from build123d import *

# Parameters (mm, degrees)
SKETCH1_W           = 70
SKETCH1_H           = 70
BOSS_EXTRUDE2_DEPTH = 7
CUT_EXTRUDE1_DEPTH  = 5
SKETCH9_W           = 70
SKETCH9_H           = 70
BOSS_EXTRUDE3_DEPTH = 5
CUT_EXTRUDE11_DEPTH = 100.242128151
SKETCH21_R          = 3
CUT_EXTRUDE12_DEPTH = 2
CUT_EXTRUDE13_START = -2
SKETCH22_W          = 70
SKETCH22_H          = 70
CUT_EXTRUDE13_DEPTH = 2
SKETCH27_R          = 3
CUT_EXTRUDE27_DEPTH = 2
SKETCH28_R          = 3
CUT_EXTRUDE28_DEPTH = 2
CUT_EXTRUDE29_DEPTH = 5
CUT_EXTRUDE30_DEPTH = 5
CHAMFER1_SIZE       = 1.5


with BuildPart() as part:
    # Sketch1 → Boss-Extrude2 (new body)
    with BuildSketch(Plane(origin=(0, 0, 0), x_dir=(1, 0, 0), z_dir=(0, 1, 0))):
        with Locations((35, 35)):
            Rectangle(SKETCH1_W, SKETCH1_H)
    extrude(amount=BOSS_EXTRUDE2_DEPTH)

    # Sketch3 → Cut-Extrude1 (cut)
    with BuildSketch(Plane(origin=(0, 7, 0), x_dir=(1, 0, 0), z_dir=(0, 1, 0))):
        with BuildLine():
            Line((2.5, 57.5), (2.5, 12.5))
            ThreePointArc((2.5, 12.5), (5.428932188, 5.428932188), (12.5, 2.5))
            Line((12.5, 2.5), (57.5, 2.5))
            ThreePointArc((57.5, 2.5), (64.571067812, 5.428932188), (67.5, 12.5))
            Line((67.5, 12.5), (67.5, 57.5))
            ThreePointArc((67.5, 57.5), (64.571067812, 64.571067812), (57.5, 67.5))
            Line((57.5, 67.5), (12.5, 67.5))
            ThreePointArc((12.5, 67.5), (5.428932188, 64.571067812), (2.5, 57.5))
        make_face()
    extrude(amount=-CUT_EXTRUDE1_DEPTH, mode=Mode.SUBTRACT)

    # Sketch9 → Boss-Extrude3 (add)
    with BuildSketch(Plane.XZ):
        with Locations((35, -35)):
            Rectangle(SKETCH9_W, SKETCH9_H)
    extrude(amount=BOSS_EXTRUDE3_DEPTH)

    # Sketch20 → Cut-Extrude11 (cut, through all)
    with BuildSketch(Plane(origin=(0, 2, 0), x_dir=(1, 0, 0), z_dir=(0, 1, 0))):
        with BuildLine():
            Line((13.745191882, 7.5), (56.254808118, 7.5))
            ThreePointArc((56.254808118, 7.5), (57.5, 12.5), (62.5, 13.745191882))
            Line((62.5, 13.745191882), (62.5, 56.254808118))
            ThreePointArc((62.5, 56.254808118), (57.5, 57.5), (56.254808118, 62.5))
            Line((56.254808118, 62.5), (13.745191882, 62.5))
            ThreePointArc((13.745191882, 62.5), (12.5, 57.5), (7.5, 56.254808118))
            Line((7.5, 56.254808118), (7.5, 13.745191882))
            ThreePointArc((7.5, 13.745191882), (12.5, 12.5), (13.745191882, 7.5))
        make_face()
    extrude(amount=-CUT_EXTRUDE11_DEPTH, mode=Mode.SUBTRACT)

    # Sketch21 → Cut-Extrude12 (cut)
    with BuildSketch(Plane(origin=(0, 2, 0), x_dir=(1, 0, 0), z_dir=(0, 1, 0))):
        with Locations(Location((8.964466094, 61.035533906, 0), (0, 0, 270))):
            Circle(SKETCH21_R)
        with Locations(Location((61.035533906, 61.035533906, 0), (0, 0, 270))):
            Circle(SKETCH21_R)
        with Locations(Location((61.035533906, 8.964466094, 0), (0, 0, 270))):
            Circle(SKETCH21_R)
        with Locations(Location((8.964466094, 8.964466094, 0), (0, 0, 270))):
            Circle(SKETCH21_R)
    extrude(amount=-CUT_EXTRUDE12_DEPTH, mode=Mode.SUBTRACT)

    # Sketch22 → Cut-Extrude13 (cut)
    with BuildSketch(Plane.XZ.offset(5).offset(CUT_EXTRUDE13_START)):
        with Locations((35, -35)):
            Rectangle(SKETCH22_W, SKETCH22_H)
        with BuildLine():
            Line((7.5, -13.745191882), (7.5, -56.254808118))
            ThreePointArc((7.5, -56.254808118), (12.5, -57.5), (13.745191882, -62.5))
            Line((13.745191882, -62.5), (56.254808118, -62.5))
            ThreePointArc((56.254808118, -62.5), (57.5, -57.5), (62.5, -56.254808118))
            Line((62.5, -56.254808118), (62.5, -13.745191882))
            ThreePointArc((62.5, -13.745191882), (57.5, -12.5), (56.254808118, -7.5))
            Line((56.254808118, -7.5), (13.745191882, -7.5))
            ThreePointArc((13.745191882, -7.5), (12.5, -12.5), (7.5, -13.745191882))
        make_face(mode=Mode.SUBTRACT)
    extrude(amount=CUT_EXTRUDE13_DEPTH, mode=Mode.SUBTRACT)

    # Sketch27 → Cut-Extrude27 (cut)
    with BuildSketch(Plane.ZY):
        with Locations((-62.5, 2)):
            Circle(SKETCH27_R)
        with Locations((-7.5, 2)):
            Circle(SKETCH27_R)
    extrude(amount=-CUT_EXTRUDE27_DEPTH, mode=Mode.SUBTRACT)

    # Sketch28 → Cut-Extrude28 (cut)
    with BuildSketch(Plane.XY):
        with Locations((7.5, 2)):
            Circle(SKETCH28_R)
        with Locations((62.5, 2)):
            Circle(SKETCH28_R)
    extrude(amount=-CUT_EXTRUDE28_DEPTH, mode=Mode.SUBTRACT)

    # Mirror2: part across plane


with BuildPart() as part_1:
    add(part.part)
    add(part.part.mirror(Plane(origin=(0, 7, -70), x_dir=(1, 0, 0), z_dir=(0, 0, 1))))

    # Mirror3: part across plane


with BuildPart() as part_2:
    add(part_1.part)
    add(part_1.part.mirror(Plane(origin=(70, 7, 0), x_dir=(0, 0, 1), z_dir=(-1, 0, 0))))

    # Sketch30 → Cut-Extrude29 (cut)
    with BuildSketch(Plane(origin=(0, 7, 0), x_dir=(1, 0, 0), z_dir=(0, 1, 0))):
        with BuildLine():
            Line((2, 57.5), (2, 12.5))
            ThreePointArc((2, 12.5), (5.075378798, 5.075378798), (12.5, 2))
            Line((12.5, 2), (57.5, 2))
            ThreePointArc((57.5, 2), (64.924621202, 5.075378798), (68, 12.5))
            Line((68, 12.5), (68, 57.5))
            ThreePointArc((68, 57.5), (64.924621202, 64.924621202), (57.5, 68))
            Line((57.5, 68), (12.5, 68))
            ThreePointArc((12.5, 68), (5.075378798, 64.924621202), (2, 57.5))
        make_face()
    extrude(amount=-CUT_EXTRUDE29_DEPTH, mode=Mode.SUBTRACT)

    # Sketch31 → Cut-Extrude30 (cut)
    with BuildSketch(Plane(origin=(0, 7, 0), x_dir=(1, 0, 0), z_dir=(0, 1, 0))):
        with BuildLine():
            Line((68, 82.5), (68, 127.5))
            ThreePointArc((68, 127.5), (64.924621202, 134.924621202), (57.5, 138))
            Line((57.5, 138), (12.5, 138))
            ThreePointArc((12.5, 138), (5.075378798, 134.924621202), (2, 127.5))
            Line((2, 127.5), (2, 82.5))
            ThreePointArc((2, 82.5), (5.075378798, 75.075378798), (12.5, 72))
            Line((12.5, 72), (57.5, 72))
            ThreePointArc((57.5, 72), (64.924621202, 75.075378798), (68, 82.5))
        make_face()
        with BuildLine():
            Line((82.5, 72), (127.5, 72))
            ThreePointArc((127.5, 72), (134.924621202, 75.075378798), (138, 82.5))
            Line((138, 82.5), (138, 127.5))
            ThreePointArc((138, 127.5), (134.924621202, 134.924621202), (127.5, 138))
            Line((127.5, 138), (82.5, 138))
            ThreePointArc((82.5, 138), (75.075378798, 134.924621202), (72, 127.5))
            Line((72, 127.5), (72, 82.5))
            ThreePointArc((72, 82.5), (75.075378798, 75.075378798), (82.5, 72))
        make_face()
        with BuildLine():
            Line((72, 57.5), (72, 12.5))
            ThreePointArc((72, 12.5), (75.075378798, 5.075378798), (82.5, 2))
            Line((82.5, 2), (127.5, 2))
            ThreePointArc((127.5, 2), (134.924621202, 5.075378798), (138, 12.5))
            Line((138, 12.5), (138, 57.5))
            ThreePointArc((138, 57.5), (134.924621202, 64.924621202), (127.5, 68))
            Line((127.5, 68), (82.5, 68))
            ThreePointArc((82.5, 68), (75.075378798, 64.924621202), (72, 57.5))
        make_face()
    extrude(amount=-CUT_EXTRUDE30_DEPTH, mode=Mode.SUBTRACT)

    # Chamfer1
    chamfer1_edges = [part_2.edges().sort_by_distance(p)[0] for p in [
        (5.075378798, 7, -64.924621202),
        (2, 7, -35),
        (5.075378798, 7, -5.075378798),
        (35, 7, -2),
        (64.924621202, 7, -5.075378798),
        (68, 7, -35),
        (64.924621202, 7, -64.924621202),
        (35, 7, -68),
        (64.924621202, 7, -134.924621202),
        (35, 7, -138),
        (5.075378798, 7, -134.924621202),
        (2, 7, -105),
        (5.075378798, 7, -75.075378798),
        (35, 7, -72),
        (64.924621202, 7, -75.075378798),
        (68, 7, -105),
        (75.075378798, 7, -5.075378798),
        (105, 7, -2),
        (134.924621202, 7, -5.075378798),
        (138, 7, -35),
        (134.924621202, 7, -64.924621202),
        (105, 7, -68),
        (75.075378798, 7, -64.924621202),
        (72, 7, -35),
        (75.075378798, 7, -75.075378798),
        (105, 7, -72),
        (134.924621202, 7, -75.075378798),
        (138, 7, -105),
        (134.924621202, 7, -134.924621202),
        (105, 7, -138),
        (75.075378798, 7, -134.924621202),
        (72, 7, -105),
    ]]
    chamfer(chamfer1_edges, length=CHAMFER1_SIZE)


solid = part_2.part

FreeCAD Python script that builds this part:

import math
import FreeCAD as App
import Part
import Sketcher
from FreeCAD import Vector
Q = App.Units.Quantity


def edges_at(feature, points):
    """Names of the edges that pass closest to the given points."""
    edges = feature.Shape.Edges
    near = lambda p: min(range(len(edges)), key=lambda i: edges[i].distToShape(Part.Vertex(*p))[0])
    return sorted({f"Edge{near(p) + 1}" for p in points})

doc = App.newDocument("Part")
body = doc.addObject("PartDesign::Body", "Body")

# Sketch on XZ plane
sketch1 = body.newObject("Sketcher::SketchObject", "Sketch")
sketch1.AttachmentSupport = (doc.getObject("XZ_Plane"), [""])
sketch1.MapMode = "FlatFace"
sketch1.addGeometry([
    Part.LineSegment(Vector(0, -70, 0), Vector(0, 0, 0)),
    Part.LineSegment(Vector(0, 0, 0), Vector(70, 0, 0)),
    Part.LineSegment(Vector(70, 0, 0), Vector(70, -70, 0)),
    Part.LineSegment(Vector(70, -70, 0), Vector(0, -70, 0)),
], False)
sketch1.addConstraint([
    Sketcher.Constraint("Coincident", 0, 2, 1, 1),
    Sketcher.Constraint("Coincident", 1, 2, 2, 1),
    Sketcher.Constraint("Coincident", 2, 2, 3, 1),
    Sketcher.Constraint("Coincident", 3, 2, 0, 1),
    Sketcher.Constraint("Vertical", 0),
    Sketcher.Constraint("Horizontal", 1),
    Sketcher.Constraint("Vertical", 2),
    Sketcher.Constraint("Horizontal", 3),
    Sketcher.Constraint("Coincident", 0, 2, -1, 1),
    Sketcher.Constraint("Equal", 3, 0),
    Sketcher.Constraint("DistanceX", 1, 1, 1, 2, Q("70 mm")),
])
pad1 = body.newObject("PartDesign::Pad", "Pad")
pad1.Profile = sketch1
pad1.Length = 7
pad1.Reversed = True

# Sketch on XZ plane
sketch2 = body.newObject("Sketcher::SketchObject", "Sketch001")
sketch2.AttachmentSupport = (doc.getObject("XZ_Plane"), [""])
sketch2.MapMode = "FlatFace"
sketch2.AttachmentOffset = App.Placement(Vector(0, 0, -7), App.Rotation())
sketch2.addGeometry([
    Part.LineSegment(Vector(2, -58, 0), Vector(2, -12, 0)),  # 0
    Part.ArcOfCircle(Part.Circle(Vector(12, -12, 0), Vector(0, 0, 1), 10), math.radians(90), math.radians(180)),  # 1
    Part.LineSegment(Vector(12, -2, 0), Vector(58, -2, 0)),  # 2
    Part.ArcOfCircle(Part.Circle(Vector(58, -12, 0), Vector(0, 0, 1), 10), math.radians(0), math.radians(90)),  # 3
    Part.LineSegment(Vector(68, -12, 0), Vector(68, -58, 0)),  # 4
    Part.ArcOfCircle(Part.Circle(Vector(58, -58, 0), Vector(0, 0, 1), 10), math.radians(-90), math.radians(0)),  # 5
    Part.LineSegment(Vector(58, -68, 0), Vector(12, -68, 0)),  # 6
    Part.ArcOfCircle(Part.Circle(Vector(12, -58, 0), Vector(0, 0, 1), 10), math.radians(180), math.radians(270)),  # 7
], False)
sketch2.addConstraint([
    Sketcher.Constraint("Tangent", 0, 2, 1, 2),
    Sketcher.Constraint("Tangent", 1, 1, 2, 1),
    Sketcher.Constraint("Tangent", 2, 2, 3, 2),
    Sketcher.Constraint("Tangent", 3, 1, 4, 1),
    Sketcher.Constraint("Tangent", 4, 2, 5, 2),
    Sketcher.Constraint("Tangent", 5, 1, 6, 1),
    Sketcher.Constraint("Tangent", 6, 2, 7, 2),
    Sketcher.Constraint("Tangent", 7, 1, 0, 1),
    Sketcher.Constraint("Vertical", 0),
    Sketcher.Constraint("Horizontal", 2),
    Sketcher.Constraint("Vertical", 4),
    Sketcher.Constraint("Horizontal", 6),
    Sketcher.Constraint("Equal", 1, 3),
    Sketcher.Constraint("Equal", 3, 5),
    Sketcher.Constraint("Equal", 5, 7),
    Sketcher.Constraint("Equal", 6, 0),
    Sketcher.Constraint("Radius", 1, Q("10 mm")),
    Sketcher.Constraint("DistanceX", 2, 1, 2, 2, Q("45 mm")),
    Sketcher.Constraint("DistanceX", -1, 1, 1, 3, Q("12.5 mm")),
    Sketcher.Constraint("DistanceY", 1, 3, -1, 1, Q("12.5 mm")),
])
pocket1 = body.newObject("PartDesign::Pocket", "Pocket")
pocket1.Profile = sketch2
pocket1.Length = 5
pocket1.Reversed = True

# Sketch on XZ plane
sketch3 = body.newObject("Sketcher::SketchObject", "Sketch002")
sketch3.AttachmentSupport = (doc.getObject("XZ_Plane"), [""])
sketch3.MapMode = "FlatFace"
sketch3.addGeometry([
    Part.LineSegment(Vector(0, 0, 0), Vector(0, -70, 0)),
    Part.LineSegment(Vector(0, -70, 0), Vector(70, -70, 0)),
    Part.LineSegment(Vector(70, -70, 0), Vector(70, 0, 0)),
    Part.LineSegment(Vector(70, 0, 0), Vector(0, 0, 0)),
], False)
sketch3.addConstraint([
    Sketcher.Constraint("Coincident", 0, 2, 1, 1),
    Sketcher.Constraint("Coincident", 1, 2, 2, 1),
    Sketcher.Constraint("Coincident", 2, 2, 3, 1),
    Sketcher.Constraint("Coincident", 3, 2, 0, 1),
    Sketcher.Constraint("Vertical", 0),
    Sketcher.Constraint("Horizontal", 1),
    Sketcher.Constraint("Vertical", 2),
    Sketcher.Constraint("Horizontal", 3),
    Sketcher.Constraint("Coincident", 3, 2, -1, 1),
    Sketcher.Constraint("Equal", 3, 0),
    Sketcher.Constraint("DistanceX", 1, 1, 1, 2, Q("70 mm")),
])
pad2 = body.newObject("PartDesign::Pad", "Pad001")
pad2.Profile = sketch3
pad2.Length = 5

# Sketch on XZ plane
sketch4 = body.newObject("Sketcher::SketchObject", "Sketch003")
sketch4.AttachmentSupport = (doc.getObject("XZ_Plane"), [""])
sketch4.MapMode = "FlatFace"
sketch4.AttachmentOffset = App.Placement(Vector(0, 0, -2), App.Rotation())
sketch4.addGeometry([
    Part.LineSegment(Vector(14, -8, 0), Vector(56, -8, 0)),  # 0
    Part.ArcOfCircle(Part.Circle(Vector(61, -9, 0), Vector(0, 0, 1), 5), math.radians(163), math.radians(287)),  # 1
    Part.LineSegment(Vector(62, -14, 0), Vector(62, -56, 0)),  # 2
    Part.ArcOfCircle(Part.Circle(Vector(61, -61, 0), Vector(0, 0, 1), 5), math.radians(73), math.radians(197)),  # 3
    Part.LineSegment(Vector(56, -62, 0), Vector(14, -62, 0)),  # 4
    Part.ArcOfCircle(Part.Circle(Vector(9, -61, 0), Vector(0, 0, 1), 5), math.radians(-17), math.radians(107)),  # 5
    Part.LineSegment(Vector(8, -56, 0), Vector(8, -14, 0)),  # 6
    Part.ArcOfCircle(Part.Circle(Vector(9, -9, 0), Vector(0, 0, 1), 5), math.radians(-107), math.radians(17)),  # 7
], False)
sketch4.addConstraint([
    Sketcher.Constraint("Coincident", 0, 2, 1, 1),
    Sketcher.Constraint("Coincident", 1, 2, 2, 1),
    Sketcher.Constraint("Coincident", 2, 2, 3, 1),
    Sketcher.Constraint("Coincident", 3, 2, 4, 1),
    Sketcher.Constraint("Coincident", 4, 2, 5, 1),
    Sketcher.Constraint("Coincident", 5, 2, 6, 1),
    Sketcher.Constraint("Coincident", 6, 2, 7, 1),
    Sketcher.Constraint("Coincident", 7, 2, 0, 1),
    Sketcher.Constraint("Horizontal", 0),
    Sketcher.Constraint("Vertical", 2),
    Sketcher.Constraint("Horizontal", 4),
    Sketcher.Constraint("Vertical", 6),
    Sketcher.Constraint("Equal", 1, 3),
    Sketcher.Constraint("Equal", 3, 5),
    Sketcher.Constraint("Equal", 5, 7),
    Sketcher.Constraint("Horizontal", 3, 3, 5, 3),
    Sketcher.Constraint("Horizontal", 1, 3, 7, 3),
    Sketcher.Constraint("Horizontal", 2, 2, 5, 2),
    Sketcher.Constraint("Horizontal", 1, 2, 6, 2),
    Sketcher.Constraint("Vertical", 1, 3, 3, 3),
    Sketcher.Constraint("Vertical", 0, 2, 3, 2),
    Sketcher.Constraint("Equal", 4, 2),
    Sketcher.Constraint("Radius", 1, Q("5 mm")),
    Sketcher.Constraint("DistanceY", 0, 2, -1, 1, Q("7.5 mm")),
    Sketcher.Constraint("DistanceX", -1, 1, 1, 2, Q("62.5 mm")),
    Sketcher.Constraint("DistanceY", 3, 2, -1, 1, Q("62.5 mm")),
    Sketcher.Constraint("DistanceX", -1, 1, 5, 2, Q("7.5 mm")),
    Sketcher.Constraint("DistanceX", 0, 1, 0, 2, Q("42.509616 mm")),
])
pocket2 = body.newObject("PartDesign::Pocket", "Pocket001")
pocket2.Profile = sketch4
pocket2.Type = "ThroughAll"
pocket2.Reversed = True

# Sketch on XZ plane
sketch5 = body.newObject("Sketcher::SketchObject", "Sketch004")
sketch5.AttachmentSupport = (doc.getObject("XZ_Plane"), [""])
sketch5.MapMode = "FlatFace"
sketch5.AttachmentOffset = App.Placement(Vector(0, 0, -2), App.Rotation())
sketch5.addGeometry([
    Part.Circle(Vector(9, -61, 0), Vector(0, 0, 1), 3),
    Part.Circle(Vector(61, -61, 0), Vector(0, 0, 1), 3),
    Part.Circle(Vector(61, -9, 0), Vector(0, 0, 1), 3),
    Part.Circle(Vector(9, -9, 0), Vector(0, 0, 1), 3),
], False)
sketch5.addConstraint([
    Sketcher.Constraint("Equal", 0, 1),
    Sketcher.Constraint("Equal", 1, 2),
    Sketcher.Constraint("Equal", 2, 3),
    Sketcher.Constraint("Horizontal", 0, 3, 1, 3),
    Sketcher.Constraint("Horizontal", 2, 3, 3, 3),
    Sketcher.Constraint("Vertical", 1, 3, 2, 3),
    Sketcher.Constraint("Vertical", 0, 3, 3, 3),
    Sketcher.Constraint("Diameter", 0, Q("6 mm")),
    Sketcher.Constraint("DistanceX", -1, 1, 0, 3, Q("8.964466 mm")),
    Sketcher.Constraint("DistanceY", 0, 3, -1, 1, Q("61.035534 mm")),
    Sketcher.Constraint("DistanceX", -1, 1, 1, 3, Q("61.035534 mm")),
    Sketcher.Constraint("DistanceY", 2, 3, -1, 1, Q("8.964466 mm")),
])
pocket3 = body.newObject("PartDesign::Pocket", "Pocket002")
pocket3.Profile = sketch5
pocket3.Length = 2
pocket3.Reversed = True

# Sketch on XZ plane
sketch6 = body.newObject("Sketcher::SketchObject", "Sketch005")
sketch6.AttachmentSupport = (doc.getObject("XZ_Plane"), [""])
sketch6.MapMode = "FlatFace"
sketch6.AttachmentOffset = App.Placement(Vector(0, 0, 3), App.Rotation())
sketch6.addGeometry([
    Part.LineSegment(Vector(0, 0, 0), Vector(0, -70, 0)),  # 0
    Part.LineSegment(Vector(0, -70, 0), Vector(70, -70, 0)),  # 1
    Part.LineSegment(Vector(70, -70, 0), Vector(70, 0, 0)),  # 2
    Part.LineSegment(Vector(70, 0, 0), Vector(0, 0, 0)),  # 3
    Part.LineSegment(Vector(8, -56, 0), Vector(8, -14, 0)),  # 4
    Part.ArcOfCircle(Part.Circle(Vector(9, -9, 0), Vector(0, 0, 1), 5), math.radians(-107), math.radians(17)),  # 5
    Part.LineSegment(Vector(14, -8, 0), Vector(56, -8, 0)),  # 6
    Part.ArcOfCircle(Part.Circle(Vector(61, -9, 0), Vector(0, 0, 1), 5), math.radians(163), math.radians(287)),  # 7
    Part.LineSegment(Vector(62, -14, 0), Vector(62, -56, 0)),  # 8
    Part.ArcOfCircle(Part.Circle(Vector(61, -61, 0), Vector(0, 0, 1), 5), math.radians(73), math.radians(197)),  # 9
    Part.LineSegment(Vector(56, -62, 0), Vector(14, -62, 0)),  # 10
    Part.ArcOfCircle(Part.Circle(Vector(9, -61, 0), Vector(0, 0, 1), 5), math.radians(-17), math.radians(107)),  # 11
], False)
sketch6.addConstraint([
    Sketcher.Constraint("Coincident", 0, 2, 1, 1),
    Sketcher.Constraint("Coincident", 1, 2, 2, 1),
    Sketcher.Constraint("Coincident", 2, 2, 3, 1),
    Sketcher.Constraint("Coincident", 3, 2, 0, 1),
    Sketcher.Constraint("Coincident", 4, 2, 5, 1),
    Sketcher.Constraint("Coincident", 5, 2, 6, 1),
    Sketcher.Constraint("Coincident", 6, 2, 7, 1),
    Sketcher.Constraint("Coincident", 7, 2, 8, 1),
    Sketcher.Constraint("Coincident", 8, 2, 9, 1),
    Sketcher.Constraint("Coincident", 9, 2, 10, 1),
    Sketcher.Constraint("Coincident", 10, 2, 11, 1),
    Sketcher.Constraint("Coincident", 11, 2, 4, 1),
    Sketcher.Constraint("Vertical", 0),
    Sketcher.Constraint("Horizontal", 1),
    Sketcher.Constraint("Vertical", 2),
    Sketcher.Constraint("Horizontal", 3),
    Sketcher.Constraint("Vertical", 4),
    Sketcher.Constraint("Horizontal", 6),
    Sketcher.Constraint("Vertical", 8),
    Sketcher.Constraint("Horizontal", 10),
    Sketcher.Constraint("Coincident", 3, 2, -1, 1),
    Sketcher.Constraint("Equal", 5, 7),
    Sketcher.Constraint("Equal", 7, 9),
    Sketcher.Constraint("Equal", 9, 11),
    Sketcher.Constraint("Horizontal", 5, 3, 7, 3),
    Sketcher.Constraint("Horizontal", 9, 3, 11, 3),
    Sketcher.Constraint("Horizontal", 4, 2, 7, 2),
    Sketcher.Constraint("Horizontal", 8, 2, 11, 2),
    Sketcher.Constraint("Vertical", 7, 3, 9, 3),
    Sketcher.Constraint("Vertical", 6, 2, 9, 2),
    Sketcher.Constraint("Equal", 3, 0),
    Sketcher.Constraint("Equal", 10, 4),
    Sketcher.Constraint("Radius", 5, Q("5 mm")),
    Sketcher.Constraint("DistanceX", 1, 1, 1, 2, Q("70 mm")),
    Sketcher.Constraint("DistanceX", -1, 1, 4, 2, Q("7.5 mm")),
    Sketcher.Constraint("DistanceY", 5, 2, -1, 1, Q("7.5 mm")),
    Sketcher.Constraint("DistanceX", -1, 1, 7, 2, Q("62.5 mm")),
    Sketcher.Constraint("DistanceY", 9, 2, -1, 1, Q("62.5 mm")),
    Sketcher.Constraint("DistanceX", 6, 1, 6, 2, Q("42.509616 mm")),
])
pocket4 = body.newObject("PartDesign::Pocket", "Pocket003")
pocket4.Profile = sketch6
pocket4.Length = 2
pocket4.Reversed = True

# Sketch on YZ plane
sketch7 = body.newObject("Sketcher::SketchObject", "Sketch006")
sketch7.AttachmentSupport = (doc.getObject("YZ_Plane"), [""])
sketch7.MapMode = "FlatFace"
sketch7.addGeometry([
    Part.Circle(Vector(2, -62.5, 0), Vector(0, 0, 1), 3),
    Part.Circle(Vector(2, -7.5, 0), Vector(0, 0, 1), 3),
], False)
sketch7.addConstraint([
    Sketcher.Constraint("Equal", 0, 1),
    Sketcher.Constraint("Vertical", 0, 3, 1, 3),
    Sketcher.Constraint("Diameter", 0, Q("6 mm")),
    Sketcher.Constraint("DistanceX", -1, 1, 0, 3, Q("2 mm")),
    Sketcher.Constraint("DistanceY", 0, 3, 1, 3, Q("55 mm")),
    Sketcher.Constraint("DistanceY", 0, 3, -1, 1, Q("62.5 mm")),
])
pocket5 = body.newObject("PartDesign::Pocket", "Pocket004")
pocket5.Profile = sketch7
pocket5.Length = 2
pocket5.Reversed = True

# Sketch on XY plane
sketch8 = body.newObject("Sketcher::SketchObject", "Sketch007")
sketch8.AttachmentSupport = (doc.getObject("XY_Plane"), [""])
sketch8.MapMode = "FlatFace"
sketch8.addGeometry([
    Part.Circle(Vector(7.5, 2, 0), Vector(0, 0, 1), 3),
    Part.Circle(Vector(62.5, 2, 0), Vector(0, 0, 1), 3),
], False)
sketch8.addConstraint([
    Sketcher.Constraint("Equal", 0, 1),
    Sketcher.Constraint("Horizontal", 0, 3, 1, 3),
    Sketcher.Constraint("Diameter", 0, Q("6 mm")),
    Sketcher.Constraint("DistanceY", -1, 1, 0, 3, Q("2 mm")),
    Sketcher.Constraint("DistanceX", 0, 3, 1, 3, Q("55 mm")),
    Sketcher.Constraint("DistanceX", -1, 1, 0, 3, Q("7.5 mm")),
])
pocket6 = body.newObject("PartDesign::Pocket", "Pocket005")
pocket6.Profile = sketch8
pocket6.Length = 2
body2 = doc.addObject("PartDesign::Body", "Body001")
doc.recompute()

body2.BaseFeature = body
doc.recompute()

mirroring = doc.addObject("Part::Mirroring", "Mirroring")
mirroring.Source = body
mirroring.Base = Vector(0, 7, -70)
mirroring.Normal = Vector(0, 0, 1)
body3 = doc.addObject("PartDesign::Body", "Body002")
body3.BaseFeature = mirroring
boolean = body2.newObject("PartDesign::Boolean", "Boolean")
boolean.Type = "Fuse"
boolean.addObjects([body3])
doc.recompute()
body4 = doc.addObject("PartDesign::Body", "Body003")
doc.recompute()

body4.BaseFeature = body2
doc.recompute()

mirroring2 = doc.addObject("Part::Mirroring", "Mirroring001")
mirroring2.Source = body2
mirroring2.Base = Vector(70, 7, 0)
mirroring2.Normal = Vector(-1, 0, 0)
body5 = doc.addObject("PartDesign::Body", "Body004")
body5.BaseFeature = mirroring2
boolean2 = body4.newObject("PartDesign::Boolean", "Boolean001")
boolean2.Type = "Fuse"
boolean2.addObjects([body5])
doc.recompute()

# Sketch on XZ plane
sketch9 = body4.newObject("Sketcher::SketchObject", "Sketch008")
sketch9.AttachmentSupport = (doc.getObject("XZ_Plane003"), [""])
sketch9.MapMode = "FlatFace"
sketch9.AttachmentOffset = App.Placement(Vector(0, 0, -7), App.Rotation())
sketch9.addGeometry([
    Part.LineSegment(Vector(2, -58, 0), Vector(2, -12, 0)),  # 0
    Part.ArcOfCircle(Part.Circle(Vector(13, -13, 0), Vector(0, 0, 1), 11), math.radians(90), math.radians(180)),  # 1
    Part.LineSegment(Vector(12, -2, 0), Vector(58, -2, 0)),  # 2
    Part.ArcOfCircle(Part.Circle(Vector(57, -13, 0), Vector(0, 0, 1), 11), math.radians(0), math.radians(90)),  # 3
    Part.LineSegment(Vector(68, -12, 0), Vector(68, -58, 0)),  # 4
    Part.ArcOfCircle(Part.Circle(Vector(57, -57, 0), Vector(0, 0, 1), 11), math.radians(-90), math.radians(0)),  # 5
    Part.LineSegment(Vector(58, -68, 0), Vector(12, -68, 0)),  # 6
    Part.ArcOfCircle(Part.Circle(Vector(13, -57, 0), Vector(0, 0, 1), 11), math.radians(-180), math.radians(-90)),  # 7
], False)
sketch9.addConstraint([
    Sketcher.Constraint("Tangent", 0, 2, 1, 2),
    Sketcher.Constraint("Tangent", 1, 1, 2, 1),
    Sketcher.Constraint("Tangent", 2, 2, 3, 2),
    Sketcher.Constraint("Tangent", 3, 1, 4, 1),
    Sketcher.Constraint("Tangent", 4, 2, 5, 2),
    Sketcher.Constraint("Tangent", 5, 1, 6, 1),
    Sketcher.Constraint("Tangent", 6, 2, 7, 2),
    Sketcher.Constraint("Tangent", 7, 1, 0, 1),
    Sketcher.Constraint("Vertical", 0),
    Sketcher.Constraint("Horizontal", 2),
    Sketcher.Constraint("Vertical", 4),
    Sketcher.Constraint("Horizontal", 6),
    Sketcher.Constraint("Equal", 1, 3),
    Sketcher.Constraint("Equal", 3, 5),
    Sketcher.Constraint("Equal", 5, 7),
    Sketcher.Constraint("Equal", 6, 0),
    Sketcher.Constraint("Radius", 1, Q("10.5 mm")),
    Sketcher.Constraint("DistanceX", 2, 1, 2, 2, Q("45 mm")),
    Sketcher.Constraint("DistanceX", -1, 1, 0, 2, Q("2 mm")),
    Sketcher.Constraint("DistanceY", 1, 1, -1, 1, Q("2 mm")),
])
pocket7 = body4.newObject("PartDesign::Pocket", "Pocket006")
pocket7.Profile = sketch9
pocket7.Length = 5
pocket7.Reversed = True

# Sketch on XZ plane
sketch10 = body4.newObject("Sketcher::SketchObject", "Sketch009")
sketch10.AttachmentSupport = (doc.getObject("XZ_Plane003"), [""])
sketch10.MapMode = "FlatFace"
sketch10.AttachmentOffset = App.Placement(Vector(0, 0, -7), App.Rotation())
sketch10.addGeometry([
    Part.LineSegment(Vector(68, -82, 0), Vector(68, -128, 0)),  # 0
    Part.ArcOfCircle(Part.Circle(Vector(57, -127, 0), Vector(0, 0, 1), 11), math.radians(-90), math.radians(0)),  # 1
    Part.LineSegment(Vector(58, -138, 0), Vector(12, -138, 0)),  # 2
    Part.ArcOfCircle(Part.Circle(Vector(13, -127, 0), Vector(0, 0, 1), 11), math.radians(-180), math.radians(-90)),  # 3
    Part.LineSegment(Vector(2, -128, 0), Vector(2, -82, 0)),  # 4
    Part.ArcOfCircle(Part.Circle(Vector(13, -83, 0), Vector(0, 0, 1), 11), math.radians(90), math.radians(180)),  # 5
    Part.LineSegment(Vector(12, -72, 0), Vector(58, -72, 0)),  # 6
    Part.ArcOfCircle(Part.Circle(Vector(57, -83, 0), Vector(0, 0, 1), 11), math.radians(0), math.radians(90)),  # 7
    Part.LineSegment(Vector(82, -72, 0), Vector(128, -72, 0)),  # 8
    Part.ArcOfCircle(Part.Circle(Vector(127, -83, 0), Vector(0, 0, 1), 11), math.radians(0), math.radians(90)),  # 9
    Part.LineSegment(Vector(138, -82, 0), Vector(138, -128, 0)),  # 10
    Part.ArcOfCircle(Part.Circle(Vector(127, -127, 0), Vector(0, 0, 1), 11), math.radians(-90), math.radians(0)),  # 11
    Part.LineSegment(Vector(128, -138, 0), Vector(82, -138, 0)),  # 12
    Part.ArcOfCircle(Part.Circle(Vector(83, -127, 0), Vector(0, 0, 1), 11), math.radians(-180), math.radians(-90)),  # 13
    Part.LineSegment(Vector(72, -128, 0), Vector(72, -82, 0)),  # 14
    Part.ArcOfCircle(Part.Circle(Vector(83, -83, 0), Vector(0, 0, 1), 11), math.radians(90), math.radians(180)),  # 15
    Part.LineSegment(Vector(72, -58, 0), Vector(72, -12, 0)),  # 16
    Part.ArcOfCircle(Part.Circle(Vector(83, -13, 0), Vector(0, 0, 1), 11), math.radians(90), math.radians(180)),  # 17
    Part.LineSegment(Vector(82, -2, 0), Vector(128, -2, 0)),  # 18
    Part.ArcOfCircle(Part.Circle(Vector(127, -13, 0), Vector(0, 0, 1), 11), math.radians(0), math.radians(90)),  # 19
    Part.LineSegment(Vector(138, -12, 0), Vector(138, -58, 0)),  # 20
    Part.ArcOfCircle(Part.Circle(Vector(127, -57, 0), Vector(0, 0, 1), 11), math.radians(-90), math.radians(0)),  # 21
    Part.LineSegment(Vector(128, -68, 0), Vector(82, -68, 0)),  # 22
    Part.ArcOfCircle(Part.Circle(Vector(83, -57, 0), Vector(0, 0, 1), 11), math.radians(-180), math.radians(-90)),  # 23
], False)
sketch10.addConstraint([
    Sketcher.Constraint("Tangent", 0, 2, 1, 2),
    Sketcher.Constraint("Tangent", 1, 1, 2, 1),
    Sketcher.Constraint("Tangent", 2, 2, 3, 2),
    Sketcher.Constraint("Tangent", 3, 1, 4, 1),
    Sketcher.Constraint("Tangent", 4, 2, 5, 2),
    Sketcher.Constraint("Tangent", 5, 1, 6, 1),
    Sketcher.Constraint("Tangent", 6, 2, 7, 2),
    Sketcher.Constraint("Tangent", 7, 1, 0, 1),
    Sketcher.Constraint("Tangent", 8, 2, 9, 2),
    Sketcher.Constraint("Tangent", 9, 1, 10, 1),
    Sketcher.Constraint("Tangent", 10, 2, 11, 2),
    Sketcher.Constraint("Tangent", 11, 1, 12, 1),
    Sketcher.Constraint("Tangent", 12, 2, 13, 2),
    Sketcher.Constraint("Tangent", 13, 1, 14, 1),
    Sketcher.Constraint("Tangent", 14, 2, 15, 2),
    Sketcher.Constraint("Tangent", 15, 1, 8, 1),
    Sketcher.Constraint("Tangent", 16, 2, 17, 2),
    Sketcher.Constraint("Tangent", 17, 1, 18, 1),
    Sketcher.Constraint("Tangent", 18, 2, 19, 2),
    Sketcher.Constraint("Tangent", 19, 1, 20, 1),
    Sketcher.Constraint("Tangent", 20, 2, 21, 2),
    Sketcher.Constraint("Tangent", 21, 1, 22, 1),
    Sketcher.Constraint("Tangent", 22, 2, 23, 2),
    Sketcher.Constraint("Tangent", 23, 1, 16, 1),
    Sketcher.Constraint("Vertical", 0),
    Sketcher.Constraint("Horizontal", 2),
    Sketcher.Constraint("Vertical", 4),
    Sketcher.Constraint("Horizontal", 6),
    Sketcher.Constraint("Horizontal", 8),
    Sketcher.Constraint("Vertical", 10),
    Sketcher.Constraint("Horizontal", 12),
    Sketcher.Constraint("Vertical", 14),
    Sketcher.Constraint("Vertical", 16),
    Sketcher.Constraint("Horizontal", 18),
    Sketcher.Constraint("Vertical", 20),
    Sketcher.Constraint("Horizontal", 22),
    Sketcher.Constraint("Equal", 1, 3),
    Sketcher.Constraint("Equal", 3, 5),
    Sketcher.Constraint("Equal", 5, 7),
    Sketcher.Constraint("Equal", 7, 9),
    Sketcher.Constraint("Equal", 9, 11),
    Sketcher.Constraint("Equal", 11, 13),
    Sketcher.Constraint("Equal", 13, 15),
    Sketcher.Constraint("Equal", 15, 17),
    Sketcher.Constraint("Equal", 17, 19),
    Sketcher.Constraint("Equal", 19, 21),
    Sketcher.Constraint("Equal", 21, 23),
    Sketcher.Constraint("Horizontal", 7, 3, 9, 3),
    Sketcher.Constraint("Horizontal", 3, 3, 11, 3),
    Sketcher.Constraint("Vertical", 15, 3, 17, 3),
    Sketcher.Constraint("Vertical", 11, 3, 19, 3),
    Sketcher.Constraint("Equal", 6, 8),
    Sketcher.Constraint("Equal", 22, 0),
    Sketcher.Constraint("Equal", 14, 16),
    Sketcher.Constraint("Radius", 1, Q("10.5 mm")),
    Sketcher.Constraint("DistanceX", 2, 2, 2, 1, Q("45 mm")),
    Sketcher.Constraint("DistanceX", -1, 1, 0, 2, Q("68 mm")),
    Sketcher.Constraint("DistanceY", 1, 1, -1, 1, Q("138 mm")),
    Sketcher.Constraint("DistanceX", -1, 1, 9, 1, Q("138 mm")),
    Sketcher.Constraint("DistanceY", 17, 1, -1, 1, Q("2 mm")),
])
pocket8 = body4.newObject("PartDesign::Pocket", "Pocket007")
pocket8.Profile = sketch10
pocket8.Length = 5
pocket8.Reversed = True
doc.recompute()

chamfer = body4.newObject("PartDesign::Chamfer", "Chamfer")
chamfer.Base = (pocket8, edges_at(pocket8, [
    (5.075, 7, -64.925),
    (2, 7, -35),
    (5.075, 7, -5.075),
    (35, 7, -2),
    (64.925, 7, -5.075),
    (68, 7, -35),
    (64.925, 7, -64.925),
    (35, 7, -68),
    (64.925, 7, -134.925),
    (35, 7, -138),
    (5.075, 7, -134.925),
    (2, 7, -105),
    (5.075, 7, -75.075),
    (35, 7, -72),
    (64.925, 7, -75.075),
    (68, 7, -105),
    (75.075, 7, -5.075),
    (105, 7, -2),
    (134.925, 7, -5.075),
    (138, 7, -35),
    (134.925, 7, -64.925),
    (105, 7, -68),
    (75.075, 7, -64.925),
    (72, 7, -35),
    (75.075, 7, -75.075),
    (105, 7, -72),
    (134.925, 7, -75.075),
    (138, 7, -105),
    (134.925, 7, -134.925),
    (105, 7, -138),
    (75.075, 7, -134.925),
    (72, 7, -105),
]))
chamfer.Size = 1.5
mirroring.Visibility = False
mirroring2.Visibility = False

doc.recompute()
